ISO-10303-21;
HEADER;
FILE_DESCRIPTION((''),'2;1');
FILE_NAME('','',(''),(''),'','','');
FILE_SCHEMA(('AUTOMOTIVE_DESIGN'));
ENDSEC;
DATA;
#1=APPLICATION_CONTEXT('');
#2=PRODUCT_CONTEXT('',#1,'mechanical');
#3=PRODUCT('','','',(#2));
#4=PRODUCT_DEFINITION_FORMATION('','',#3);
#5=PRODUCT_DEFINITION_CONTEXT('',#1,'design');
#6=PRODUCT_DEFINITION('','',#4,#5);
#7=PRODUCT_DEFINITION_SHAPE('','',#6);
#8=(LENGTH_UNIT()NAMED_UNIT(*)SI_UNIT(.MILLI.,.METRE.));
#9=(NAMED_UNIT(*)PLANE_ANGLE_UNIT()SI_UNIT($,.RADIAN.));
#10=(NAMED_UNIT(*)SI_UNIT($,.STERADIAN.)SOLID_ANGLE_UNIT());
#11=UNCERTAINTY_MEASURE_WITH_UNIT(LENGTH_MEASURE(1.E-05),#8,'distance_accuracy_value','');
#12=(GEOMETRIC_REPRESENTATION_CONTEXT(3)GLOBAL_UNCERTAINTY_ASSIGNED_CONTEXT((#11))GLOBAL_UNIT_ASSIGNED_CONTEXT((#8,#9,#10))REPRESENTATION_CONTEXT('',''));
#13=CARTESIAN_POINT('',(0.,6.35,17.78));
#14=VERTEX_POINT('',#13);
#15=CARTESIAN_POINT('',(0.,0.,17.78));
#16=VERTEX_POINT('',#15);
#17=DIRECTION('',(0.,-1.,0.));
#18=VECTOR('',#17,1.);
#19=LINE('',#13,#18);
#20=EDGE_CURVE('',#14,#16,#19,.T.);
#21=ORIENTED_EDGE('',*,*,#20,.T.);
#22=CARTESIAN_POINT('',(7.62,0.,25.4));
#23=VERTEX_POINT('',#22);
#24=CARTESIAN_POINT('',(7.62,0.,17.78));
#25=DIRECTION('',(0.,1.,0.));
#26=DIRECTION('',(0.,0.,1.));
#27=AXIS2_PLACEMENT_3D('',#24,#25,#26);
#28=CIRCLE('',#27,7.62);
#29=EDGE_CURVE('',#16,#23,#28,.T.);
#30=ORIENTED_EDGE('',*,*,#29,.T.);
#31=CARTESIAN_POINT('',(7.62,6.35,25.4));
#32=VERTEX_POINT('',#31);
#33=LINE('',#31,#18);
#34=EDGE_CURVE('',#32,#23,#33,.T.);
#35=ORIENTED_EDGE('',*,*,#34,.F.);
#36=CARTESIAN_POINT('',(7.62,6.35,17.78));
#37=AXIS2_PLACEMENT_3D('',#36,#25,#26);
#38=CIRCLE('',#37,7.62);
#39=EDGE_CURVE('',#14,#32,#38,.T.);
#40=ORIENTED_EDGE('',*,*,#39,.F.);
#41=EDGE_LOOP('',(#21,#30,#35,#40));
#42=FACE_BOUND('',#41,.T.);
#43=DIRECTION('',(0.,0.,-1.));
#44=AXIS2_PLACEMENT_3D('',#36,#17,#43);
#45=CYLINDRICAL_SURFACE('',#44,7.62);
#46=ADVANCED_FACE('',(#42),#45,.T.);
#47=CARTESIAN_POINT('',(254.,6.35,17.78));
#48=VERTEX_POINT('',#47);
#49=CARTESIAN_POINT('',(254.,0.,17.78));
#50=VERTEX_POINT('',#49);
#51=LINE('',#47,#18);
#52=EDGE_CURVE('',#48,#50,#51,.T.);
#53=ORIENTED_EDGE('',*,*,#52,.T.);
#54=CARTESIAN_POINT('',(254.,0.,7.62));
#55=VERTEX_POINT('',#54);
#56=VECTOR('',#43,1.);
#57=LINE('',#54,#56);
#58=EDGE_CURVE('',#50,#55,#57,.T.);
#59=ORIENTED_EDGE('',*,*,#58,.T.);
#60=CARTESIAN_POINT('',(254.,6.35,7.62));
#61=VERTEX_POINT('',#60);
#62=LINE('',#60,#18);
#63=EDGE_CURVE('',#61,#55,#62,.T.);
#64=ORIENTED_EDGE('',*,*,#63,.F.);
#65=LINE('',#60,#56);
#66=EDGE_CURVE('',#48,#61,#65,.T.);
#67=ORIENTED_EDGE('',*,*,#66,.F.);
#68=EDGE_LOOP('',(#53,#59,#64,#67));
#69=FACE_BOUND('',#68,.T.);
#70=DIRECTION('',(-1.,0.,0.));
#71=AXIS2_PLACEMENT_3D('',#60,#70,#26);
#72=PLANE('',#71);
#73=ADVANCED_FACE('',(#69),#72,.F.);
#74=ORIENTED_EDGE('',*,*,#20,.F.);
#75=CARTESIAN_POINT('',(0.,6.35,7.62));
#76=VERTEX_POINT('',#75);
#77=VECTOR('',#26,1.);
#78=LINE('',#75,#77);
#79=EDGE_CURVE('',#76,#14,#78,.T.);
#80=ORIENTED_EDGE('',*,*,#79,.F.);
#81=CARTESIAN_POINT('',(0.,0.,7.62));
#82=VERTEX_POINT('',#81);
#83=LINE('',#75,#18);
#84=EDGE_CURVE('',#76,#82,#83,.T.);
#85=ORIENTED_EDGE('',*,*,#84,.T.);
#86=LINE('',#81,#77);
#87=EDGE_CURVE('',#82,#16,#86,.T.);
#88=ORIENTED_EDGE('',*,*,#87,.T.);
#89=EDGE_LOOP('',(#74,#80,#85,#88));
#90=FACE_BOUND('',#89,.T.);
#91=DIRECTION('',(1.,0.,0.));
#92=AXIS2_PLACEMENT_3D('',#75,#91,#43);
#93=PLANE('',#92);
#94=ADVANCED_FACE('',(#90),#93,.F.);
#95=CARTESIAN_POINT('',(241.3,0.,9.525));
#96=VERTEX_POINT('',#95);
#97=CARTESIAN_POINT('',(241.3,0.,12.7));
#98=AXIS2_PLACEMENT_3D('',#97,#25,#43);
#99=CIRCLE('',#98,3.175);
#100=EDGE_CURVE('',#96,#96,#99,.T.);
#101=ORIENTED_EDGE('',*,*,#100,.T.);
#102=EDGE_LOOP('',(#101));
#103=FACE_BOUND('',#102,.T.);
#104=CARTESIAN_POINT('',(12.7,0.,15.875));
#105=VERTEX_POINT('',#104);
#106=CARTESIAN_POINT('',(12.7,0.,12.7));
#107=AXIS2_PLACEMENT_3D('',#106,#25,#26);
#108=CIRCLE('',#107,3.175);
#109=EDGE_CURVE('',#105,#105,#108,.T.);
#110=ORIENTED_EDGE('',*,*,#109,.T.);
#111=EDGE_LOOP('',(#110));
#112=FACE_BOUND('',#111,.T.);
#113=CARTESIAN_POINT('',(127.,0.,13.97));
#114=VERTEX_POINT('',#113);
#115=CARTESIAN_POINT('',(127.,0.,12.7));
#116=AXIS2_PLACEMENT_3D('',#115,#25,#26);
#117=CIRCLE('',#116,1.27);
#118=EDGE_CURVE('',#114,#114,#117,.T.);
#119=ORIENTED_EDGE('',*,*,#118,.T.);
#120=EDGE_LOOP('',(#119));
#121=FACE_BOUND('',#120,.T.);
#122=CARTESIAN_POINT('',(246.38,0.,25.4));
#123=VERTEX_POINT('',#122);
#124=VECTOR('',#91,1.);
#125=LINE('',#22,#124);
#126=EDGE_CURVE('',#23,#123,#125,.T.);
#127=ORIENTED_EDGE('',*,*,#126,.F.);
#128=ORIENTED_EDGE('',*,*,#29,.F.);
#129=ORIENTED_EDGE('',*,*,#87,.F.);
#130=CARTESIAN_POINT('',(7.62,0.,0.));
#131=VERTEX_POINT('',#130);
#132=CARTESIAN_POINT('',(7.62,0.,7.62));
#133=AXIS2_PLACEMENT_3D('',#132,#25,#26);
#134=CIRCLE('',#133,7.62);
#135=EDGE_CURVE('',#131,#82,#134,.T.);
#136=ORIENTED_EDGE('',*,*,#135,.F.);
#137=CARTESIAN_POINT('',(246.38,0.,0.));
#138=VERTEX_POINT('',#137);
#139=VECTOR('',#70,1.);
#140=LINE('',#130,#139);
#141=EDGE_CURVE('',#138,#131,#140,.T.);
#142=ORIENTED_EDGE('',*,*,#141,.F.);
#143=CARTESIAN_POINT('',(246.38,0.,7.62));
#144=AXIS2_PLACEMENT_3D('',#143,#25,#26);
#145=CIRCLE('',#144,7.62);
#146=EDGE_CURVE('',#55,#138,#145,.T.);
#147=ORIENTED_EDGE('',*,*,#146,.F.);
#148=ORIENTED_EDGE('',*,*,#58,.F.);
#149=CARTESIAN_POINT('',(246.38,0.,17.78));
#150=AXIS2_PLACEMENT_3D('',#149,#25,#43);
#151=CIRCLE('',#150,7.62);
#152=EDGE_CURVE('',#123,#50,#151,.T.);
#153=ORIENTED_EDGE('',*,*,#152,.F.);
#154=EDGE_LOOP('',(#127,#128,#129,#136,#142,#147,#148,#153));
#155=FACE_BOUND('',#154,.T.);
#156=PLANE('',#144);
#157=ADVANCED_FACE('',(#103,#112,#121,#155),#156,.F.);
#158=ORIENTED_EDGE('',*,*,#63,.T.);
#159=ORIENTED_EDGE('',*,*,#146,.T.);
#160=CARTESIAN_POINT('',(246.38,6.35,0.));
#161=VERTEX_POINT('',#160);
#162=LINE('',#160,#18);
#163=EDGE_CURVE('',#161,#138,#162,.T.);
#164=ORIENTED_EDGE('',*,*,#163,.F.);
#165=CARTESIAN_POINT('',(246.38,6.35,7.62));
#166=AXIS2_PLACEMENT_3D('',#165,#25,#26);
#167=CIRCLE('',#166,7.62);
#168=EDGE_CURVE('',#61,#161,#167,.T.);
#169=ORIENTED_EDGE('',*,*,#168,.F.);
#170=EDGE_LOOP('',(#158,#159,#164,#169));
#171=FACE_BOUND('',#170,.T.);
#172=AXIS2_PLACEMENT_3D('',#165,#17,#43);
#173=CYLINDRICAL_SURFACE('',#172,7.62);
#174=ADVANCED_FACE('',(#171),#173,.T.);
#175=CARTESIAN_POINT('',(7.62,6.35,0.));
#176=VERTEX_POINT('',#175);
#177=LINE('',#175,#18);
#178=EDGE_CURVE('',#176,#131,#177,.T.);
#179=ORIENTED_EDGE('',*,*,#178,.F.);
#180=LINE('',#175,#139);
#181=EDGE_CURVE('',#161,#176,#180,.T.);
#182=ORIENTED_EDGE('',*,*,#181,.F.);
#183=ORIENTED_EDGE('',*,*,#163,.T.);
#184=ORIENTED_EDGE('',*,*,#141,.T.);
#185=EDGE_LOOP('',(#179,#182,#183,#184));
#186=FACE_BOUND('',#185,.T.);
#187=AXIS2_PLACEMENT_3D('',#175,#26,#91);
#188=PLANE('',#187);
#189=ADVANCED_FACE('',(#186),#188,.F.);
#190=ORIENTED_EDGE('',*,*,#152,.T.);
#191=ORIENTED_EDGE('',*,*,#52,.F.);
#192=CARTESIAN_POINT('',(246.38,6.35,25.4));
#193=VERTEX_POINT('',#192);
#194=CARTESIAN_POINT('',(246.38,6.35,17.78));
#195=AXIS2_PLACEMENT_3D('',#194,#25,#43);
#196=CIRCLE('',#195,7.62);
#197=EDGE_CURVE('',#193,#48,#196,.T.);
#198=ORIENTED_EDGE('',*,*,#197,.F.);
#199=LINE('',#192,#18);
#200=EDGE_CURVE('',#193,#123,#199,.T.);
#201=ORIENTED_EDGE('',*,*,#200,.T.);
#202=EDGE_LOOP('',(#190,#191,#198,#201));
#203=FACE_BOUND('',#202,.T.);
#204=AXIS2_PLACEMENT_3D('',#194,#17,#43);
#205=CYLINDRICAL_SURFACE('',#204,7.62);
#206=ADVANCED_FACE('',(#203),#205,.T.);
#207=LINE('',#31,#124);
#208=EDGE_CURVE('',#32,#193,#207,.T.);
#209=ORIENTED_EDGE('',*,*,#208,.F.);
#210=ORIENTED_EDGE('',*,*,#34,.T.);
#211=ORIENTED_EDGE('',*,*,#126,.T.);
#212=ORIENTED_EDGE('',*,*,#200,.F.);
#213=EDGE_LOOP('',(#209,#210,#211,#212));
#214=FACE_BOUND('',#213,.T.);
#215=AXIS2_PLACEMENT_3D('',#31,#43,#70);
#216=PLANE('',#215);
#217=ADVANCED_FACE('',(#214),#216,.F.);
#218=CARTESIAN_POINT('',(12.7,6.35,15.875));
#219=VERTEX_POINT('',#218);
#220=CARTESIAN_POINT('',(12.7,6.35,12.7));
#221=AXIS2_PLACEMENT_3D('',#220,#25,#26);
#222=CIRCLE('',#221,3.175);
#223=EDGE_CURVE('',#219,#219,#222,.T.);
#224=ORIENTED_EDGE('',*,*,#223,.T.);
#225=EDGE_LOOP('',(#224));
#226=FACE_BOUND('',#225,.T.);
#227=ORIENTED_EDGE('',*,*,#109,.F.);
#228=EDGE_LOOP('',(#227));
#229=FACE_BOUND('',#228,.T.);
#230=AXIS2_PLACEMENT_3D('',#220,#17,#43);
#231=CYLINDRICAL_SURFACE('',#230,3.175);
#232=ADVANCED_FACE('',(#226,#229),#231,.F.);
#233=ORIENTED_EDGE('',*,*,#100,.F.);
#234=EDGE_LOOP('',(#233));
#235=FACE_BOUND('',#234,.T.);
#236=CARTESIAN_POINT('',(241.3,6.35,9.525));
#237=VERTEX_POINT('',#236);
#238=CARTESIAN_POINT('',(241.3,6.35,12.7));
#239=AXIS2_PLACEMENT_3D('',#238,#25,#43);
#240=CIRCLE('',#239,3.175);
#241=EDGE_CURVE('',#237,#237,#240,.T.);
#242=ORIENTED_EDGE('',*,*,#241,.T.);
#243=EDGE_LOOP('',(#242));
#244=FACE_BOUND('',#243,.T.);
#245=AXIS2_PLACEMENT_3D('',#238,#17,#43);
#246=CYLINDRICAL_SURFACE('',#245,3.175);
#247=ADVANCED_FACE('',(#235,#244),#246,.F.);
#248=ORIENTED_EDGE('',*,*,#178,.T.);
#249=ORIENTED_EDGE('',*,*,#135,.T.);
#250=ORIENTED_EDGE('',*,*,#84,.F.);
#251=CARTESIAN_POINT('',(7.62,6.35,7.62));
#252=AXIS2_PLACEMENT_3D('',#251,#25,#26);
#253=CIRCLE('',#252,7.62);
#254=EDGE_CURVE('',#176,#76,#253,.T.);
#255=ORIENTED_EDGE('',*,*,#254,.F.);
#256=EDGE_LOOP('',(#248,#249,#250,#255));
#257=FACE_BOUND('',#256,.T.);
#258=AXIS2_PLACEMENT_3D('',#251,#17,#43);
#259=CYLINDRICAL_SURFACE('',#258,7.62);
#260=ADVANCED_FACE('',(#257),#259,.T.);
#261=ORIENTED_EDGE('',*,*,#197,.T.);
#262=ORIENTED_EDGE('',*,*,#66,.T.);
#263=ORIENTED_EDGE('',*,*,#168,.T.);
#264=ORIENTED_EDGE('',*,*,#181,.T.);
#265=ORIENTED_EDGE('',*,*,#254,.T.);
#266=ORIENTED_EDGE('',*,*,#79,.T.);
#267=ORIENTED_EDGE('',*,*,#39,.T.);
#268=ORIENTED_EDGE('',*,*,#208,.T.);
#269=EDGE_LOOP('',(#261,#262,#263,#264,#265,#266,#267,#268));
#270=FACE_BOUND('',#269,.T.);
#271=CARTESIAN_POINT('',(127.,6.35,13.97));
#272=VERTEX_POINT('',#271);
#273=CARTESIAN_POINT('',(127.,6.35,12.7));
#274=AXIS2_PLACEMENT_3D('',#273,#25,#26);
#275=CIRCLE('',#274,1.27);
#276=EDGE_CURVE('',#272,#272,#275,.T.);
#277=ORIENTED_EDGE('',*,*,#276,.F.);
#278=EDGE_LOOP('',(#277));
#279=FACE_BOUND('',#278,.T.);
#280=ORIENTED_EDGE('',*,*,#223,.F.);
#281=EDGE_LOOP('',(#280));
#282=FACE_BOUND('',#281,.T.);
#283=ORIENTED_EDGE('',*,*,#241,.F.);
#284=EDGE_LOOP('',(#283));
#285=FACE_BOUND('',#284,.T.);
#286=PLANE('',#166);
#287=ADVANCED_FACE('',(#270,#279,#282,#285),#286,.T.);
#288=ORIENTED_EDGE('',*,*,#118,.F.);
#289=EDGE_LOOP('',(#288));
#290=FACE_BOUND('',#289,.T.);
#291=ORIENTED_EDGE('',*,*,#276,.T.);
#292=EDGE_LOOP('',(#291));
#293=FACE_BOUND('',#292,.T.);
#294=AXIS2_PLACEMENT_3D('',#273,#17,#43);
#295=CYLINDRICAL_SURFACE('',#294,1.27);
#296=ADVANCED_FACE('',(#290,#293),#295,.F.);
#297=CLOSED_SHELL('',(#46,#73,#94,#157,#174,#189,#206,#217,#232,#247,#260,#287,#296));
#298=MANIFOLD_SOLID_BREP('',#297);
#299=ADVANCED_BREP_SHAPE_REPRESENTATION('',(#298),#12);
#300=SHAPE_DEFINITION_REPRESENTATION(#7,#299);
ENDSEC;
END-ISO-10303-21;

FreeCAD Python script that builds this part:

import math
import FreeCAD as App
import Part
import Sketcher

V = App.Vector
Q = App.Units.Quantity

doc = App.newDocument("Part")
body = doc.addObject("PartDesign::Body", "Body")

sketch1 = doc.addObject("Sketcher::SketchObject", "Sketch")
body.addObject(sketch1)
sketch1.AttachmentSupport = (doc.XZ_Plane, [""])
sketch1.MapMode = "FlatFace"
sketch1.addGeometry([
    Part.LineSegment(V(246.4, 0, 0), V(7.6, 0, 0)),
    Part.ArcOfCircle(Part.Circle(V(7.6, 7.6, 0), V(0, 0, 1), 7.6), math.radians(180), math.radians(270)),
    Part.LineSegment(V(0, 7.6, 0), V(0, 17.8, 0)),
    Part.ArcOfCircle(Part.Circle(V(7.6, 17.8, 0), V(0, 0, 1), 7.6), math.radians(90), math.radians(180)),
    Part.LineSegment(V(7.6, 25.4, 0), V(246.4, 25.4, 0)),
    Part.ArcOfCircle(Part.Circle(V(246.4, 17.8, 0), V(0, 0, 1), 7.6), math.radians(0), math.radians(90)),
    Part.LineSegment(V(254, 17.8, 0), V(254, 7.6, 0)),
    Part.ArcOfCircle(Part.Circle(V(246.4, 7.6, 0), V(0, 0, 1), 7.6), math.radians(-90), math.radians(0)),
    Part.Circle(V(241.3, 12.7, 0), V(0, 0, 1), 3.2),
    Part.Circle(V(127, 12.7, 0), V(0, 0, 1), 1.3),
    Part.Circle(V(12.7, 12.7, 0), V(0, 0, 1), 3.2),
], False)
sketch1.addConstraint([
    Sketcher.Constraint("Tangent", 0, 2, 1, 2),
    Sketcher.Constraint("Tangent", 1, 1, 2, 1),
    Sketcher.Constraint("Tangent", 2, 2, 3, 2),
    Sketcher.Constraint("Tangent", 3, 1, 4, 1),
    Sketcher.Constraint("Tangent", 4, 2, 5, 2),
    Sketcher.Constraint("Tangent", 5, 1, 6, 1),
    Sketcher.Constraint("Tangent", 6, 2, 7, 2),
    Sketcher.Constraint("Tangent", 7, 1, 0, 1),
    Sketcher.Constraint("Horizontal", 0),
    Sketcher.Constraint("Vertical", 2),
    Sketcher.Constraint("Horizontal", 4),
    Sketcher.Constraint("Vertical", 6),
    Sketcher.Constraint("Equal", 1, 3),
    Sketcher.Constraint("Equal", 3, 5),
    Sketcher.Constraint("Equal", 5, 7),
    Sketcher.Constraint("Equal", 8, 10),
    Sketcher.Constraint("PointOnObject", 0, 2, -1),
    Sketcher.Constraint("PointOnObject", 1, 1, -2),
    Sketcher.Constraint("Horizontal", 8, 3, 9, 3),
    Sketcher.Constraint("Horizontal", 9, 3, 10, 3),
    Sketcher.Constraint("Diameter", 9, Q("0.1 in")),
    Sketcher.Constraint("Radius", 1, Q("0.3 in")),
    Sketcher.Constraint("Diameter", 8, Q("0.25 in")),
    Sketcher.Constraint("DistanceX", 0, 2, 0, 1, Q("9.4 in")),
    Sketcher.Constraint("DistanceY", 2, 1, 2, 2, Q("0.4 in")),
    Sketcher.Constraint("DistanceX", -1, 1, 9, 3, Q("5 in")),
    Sketcher.Constraint("DistanceX", 10, 3, 8, 3, Q("9 in")),
    Sketcher.Constraint("DistanceX", -1, 1, 8, 3, Q("9.5 in")),
    Sketcher.Constraint("DistanceY", -1, 1, 8, 3, Q("0.5 in")),
])
pad1 = doc.addObject("PartDesign::Pad", "Pad")
body.addObject(pad1)
pad1.Profile = sketch1
pad1.Length = Q("0.25 in")
pad1.Reversed = True

doc.recompute()
